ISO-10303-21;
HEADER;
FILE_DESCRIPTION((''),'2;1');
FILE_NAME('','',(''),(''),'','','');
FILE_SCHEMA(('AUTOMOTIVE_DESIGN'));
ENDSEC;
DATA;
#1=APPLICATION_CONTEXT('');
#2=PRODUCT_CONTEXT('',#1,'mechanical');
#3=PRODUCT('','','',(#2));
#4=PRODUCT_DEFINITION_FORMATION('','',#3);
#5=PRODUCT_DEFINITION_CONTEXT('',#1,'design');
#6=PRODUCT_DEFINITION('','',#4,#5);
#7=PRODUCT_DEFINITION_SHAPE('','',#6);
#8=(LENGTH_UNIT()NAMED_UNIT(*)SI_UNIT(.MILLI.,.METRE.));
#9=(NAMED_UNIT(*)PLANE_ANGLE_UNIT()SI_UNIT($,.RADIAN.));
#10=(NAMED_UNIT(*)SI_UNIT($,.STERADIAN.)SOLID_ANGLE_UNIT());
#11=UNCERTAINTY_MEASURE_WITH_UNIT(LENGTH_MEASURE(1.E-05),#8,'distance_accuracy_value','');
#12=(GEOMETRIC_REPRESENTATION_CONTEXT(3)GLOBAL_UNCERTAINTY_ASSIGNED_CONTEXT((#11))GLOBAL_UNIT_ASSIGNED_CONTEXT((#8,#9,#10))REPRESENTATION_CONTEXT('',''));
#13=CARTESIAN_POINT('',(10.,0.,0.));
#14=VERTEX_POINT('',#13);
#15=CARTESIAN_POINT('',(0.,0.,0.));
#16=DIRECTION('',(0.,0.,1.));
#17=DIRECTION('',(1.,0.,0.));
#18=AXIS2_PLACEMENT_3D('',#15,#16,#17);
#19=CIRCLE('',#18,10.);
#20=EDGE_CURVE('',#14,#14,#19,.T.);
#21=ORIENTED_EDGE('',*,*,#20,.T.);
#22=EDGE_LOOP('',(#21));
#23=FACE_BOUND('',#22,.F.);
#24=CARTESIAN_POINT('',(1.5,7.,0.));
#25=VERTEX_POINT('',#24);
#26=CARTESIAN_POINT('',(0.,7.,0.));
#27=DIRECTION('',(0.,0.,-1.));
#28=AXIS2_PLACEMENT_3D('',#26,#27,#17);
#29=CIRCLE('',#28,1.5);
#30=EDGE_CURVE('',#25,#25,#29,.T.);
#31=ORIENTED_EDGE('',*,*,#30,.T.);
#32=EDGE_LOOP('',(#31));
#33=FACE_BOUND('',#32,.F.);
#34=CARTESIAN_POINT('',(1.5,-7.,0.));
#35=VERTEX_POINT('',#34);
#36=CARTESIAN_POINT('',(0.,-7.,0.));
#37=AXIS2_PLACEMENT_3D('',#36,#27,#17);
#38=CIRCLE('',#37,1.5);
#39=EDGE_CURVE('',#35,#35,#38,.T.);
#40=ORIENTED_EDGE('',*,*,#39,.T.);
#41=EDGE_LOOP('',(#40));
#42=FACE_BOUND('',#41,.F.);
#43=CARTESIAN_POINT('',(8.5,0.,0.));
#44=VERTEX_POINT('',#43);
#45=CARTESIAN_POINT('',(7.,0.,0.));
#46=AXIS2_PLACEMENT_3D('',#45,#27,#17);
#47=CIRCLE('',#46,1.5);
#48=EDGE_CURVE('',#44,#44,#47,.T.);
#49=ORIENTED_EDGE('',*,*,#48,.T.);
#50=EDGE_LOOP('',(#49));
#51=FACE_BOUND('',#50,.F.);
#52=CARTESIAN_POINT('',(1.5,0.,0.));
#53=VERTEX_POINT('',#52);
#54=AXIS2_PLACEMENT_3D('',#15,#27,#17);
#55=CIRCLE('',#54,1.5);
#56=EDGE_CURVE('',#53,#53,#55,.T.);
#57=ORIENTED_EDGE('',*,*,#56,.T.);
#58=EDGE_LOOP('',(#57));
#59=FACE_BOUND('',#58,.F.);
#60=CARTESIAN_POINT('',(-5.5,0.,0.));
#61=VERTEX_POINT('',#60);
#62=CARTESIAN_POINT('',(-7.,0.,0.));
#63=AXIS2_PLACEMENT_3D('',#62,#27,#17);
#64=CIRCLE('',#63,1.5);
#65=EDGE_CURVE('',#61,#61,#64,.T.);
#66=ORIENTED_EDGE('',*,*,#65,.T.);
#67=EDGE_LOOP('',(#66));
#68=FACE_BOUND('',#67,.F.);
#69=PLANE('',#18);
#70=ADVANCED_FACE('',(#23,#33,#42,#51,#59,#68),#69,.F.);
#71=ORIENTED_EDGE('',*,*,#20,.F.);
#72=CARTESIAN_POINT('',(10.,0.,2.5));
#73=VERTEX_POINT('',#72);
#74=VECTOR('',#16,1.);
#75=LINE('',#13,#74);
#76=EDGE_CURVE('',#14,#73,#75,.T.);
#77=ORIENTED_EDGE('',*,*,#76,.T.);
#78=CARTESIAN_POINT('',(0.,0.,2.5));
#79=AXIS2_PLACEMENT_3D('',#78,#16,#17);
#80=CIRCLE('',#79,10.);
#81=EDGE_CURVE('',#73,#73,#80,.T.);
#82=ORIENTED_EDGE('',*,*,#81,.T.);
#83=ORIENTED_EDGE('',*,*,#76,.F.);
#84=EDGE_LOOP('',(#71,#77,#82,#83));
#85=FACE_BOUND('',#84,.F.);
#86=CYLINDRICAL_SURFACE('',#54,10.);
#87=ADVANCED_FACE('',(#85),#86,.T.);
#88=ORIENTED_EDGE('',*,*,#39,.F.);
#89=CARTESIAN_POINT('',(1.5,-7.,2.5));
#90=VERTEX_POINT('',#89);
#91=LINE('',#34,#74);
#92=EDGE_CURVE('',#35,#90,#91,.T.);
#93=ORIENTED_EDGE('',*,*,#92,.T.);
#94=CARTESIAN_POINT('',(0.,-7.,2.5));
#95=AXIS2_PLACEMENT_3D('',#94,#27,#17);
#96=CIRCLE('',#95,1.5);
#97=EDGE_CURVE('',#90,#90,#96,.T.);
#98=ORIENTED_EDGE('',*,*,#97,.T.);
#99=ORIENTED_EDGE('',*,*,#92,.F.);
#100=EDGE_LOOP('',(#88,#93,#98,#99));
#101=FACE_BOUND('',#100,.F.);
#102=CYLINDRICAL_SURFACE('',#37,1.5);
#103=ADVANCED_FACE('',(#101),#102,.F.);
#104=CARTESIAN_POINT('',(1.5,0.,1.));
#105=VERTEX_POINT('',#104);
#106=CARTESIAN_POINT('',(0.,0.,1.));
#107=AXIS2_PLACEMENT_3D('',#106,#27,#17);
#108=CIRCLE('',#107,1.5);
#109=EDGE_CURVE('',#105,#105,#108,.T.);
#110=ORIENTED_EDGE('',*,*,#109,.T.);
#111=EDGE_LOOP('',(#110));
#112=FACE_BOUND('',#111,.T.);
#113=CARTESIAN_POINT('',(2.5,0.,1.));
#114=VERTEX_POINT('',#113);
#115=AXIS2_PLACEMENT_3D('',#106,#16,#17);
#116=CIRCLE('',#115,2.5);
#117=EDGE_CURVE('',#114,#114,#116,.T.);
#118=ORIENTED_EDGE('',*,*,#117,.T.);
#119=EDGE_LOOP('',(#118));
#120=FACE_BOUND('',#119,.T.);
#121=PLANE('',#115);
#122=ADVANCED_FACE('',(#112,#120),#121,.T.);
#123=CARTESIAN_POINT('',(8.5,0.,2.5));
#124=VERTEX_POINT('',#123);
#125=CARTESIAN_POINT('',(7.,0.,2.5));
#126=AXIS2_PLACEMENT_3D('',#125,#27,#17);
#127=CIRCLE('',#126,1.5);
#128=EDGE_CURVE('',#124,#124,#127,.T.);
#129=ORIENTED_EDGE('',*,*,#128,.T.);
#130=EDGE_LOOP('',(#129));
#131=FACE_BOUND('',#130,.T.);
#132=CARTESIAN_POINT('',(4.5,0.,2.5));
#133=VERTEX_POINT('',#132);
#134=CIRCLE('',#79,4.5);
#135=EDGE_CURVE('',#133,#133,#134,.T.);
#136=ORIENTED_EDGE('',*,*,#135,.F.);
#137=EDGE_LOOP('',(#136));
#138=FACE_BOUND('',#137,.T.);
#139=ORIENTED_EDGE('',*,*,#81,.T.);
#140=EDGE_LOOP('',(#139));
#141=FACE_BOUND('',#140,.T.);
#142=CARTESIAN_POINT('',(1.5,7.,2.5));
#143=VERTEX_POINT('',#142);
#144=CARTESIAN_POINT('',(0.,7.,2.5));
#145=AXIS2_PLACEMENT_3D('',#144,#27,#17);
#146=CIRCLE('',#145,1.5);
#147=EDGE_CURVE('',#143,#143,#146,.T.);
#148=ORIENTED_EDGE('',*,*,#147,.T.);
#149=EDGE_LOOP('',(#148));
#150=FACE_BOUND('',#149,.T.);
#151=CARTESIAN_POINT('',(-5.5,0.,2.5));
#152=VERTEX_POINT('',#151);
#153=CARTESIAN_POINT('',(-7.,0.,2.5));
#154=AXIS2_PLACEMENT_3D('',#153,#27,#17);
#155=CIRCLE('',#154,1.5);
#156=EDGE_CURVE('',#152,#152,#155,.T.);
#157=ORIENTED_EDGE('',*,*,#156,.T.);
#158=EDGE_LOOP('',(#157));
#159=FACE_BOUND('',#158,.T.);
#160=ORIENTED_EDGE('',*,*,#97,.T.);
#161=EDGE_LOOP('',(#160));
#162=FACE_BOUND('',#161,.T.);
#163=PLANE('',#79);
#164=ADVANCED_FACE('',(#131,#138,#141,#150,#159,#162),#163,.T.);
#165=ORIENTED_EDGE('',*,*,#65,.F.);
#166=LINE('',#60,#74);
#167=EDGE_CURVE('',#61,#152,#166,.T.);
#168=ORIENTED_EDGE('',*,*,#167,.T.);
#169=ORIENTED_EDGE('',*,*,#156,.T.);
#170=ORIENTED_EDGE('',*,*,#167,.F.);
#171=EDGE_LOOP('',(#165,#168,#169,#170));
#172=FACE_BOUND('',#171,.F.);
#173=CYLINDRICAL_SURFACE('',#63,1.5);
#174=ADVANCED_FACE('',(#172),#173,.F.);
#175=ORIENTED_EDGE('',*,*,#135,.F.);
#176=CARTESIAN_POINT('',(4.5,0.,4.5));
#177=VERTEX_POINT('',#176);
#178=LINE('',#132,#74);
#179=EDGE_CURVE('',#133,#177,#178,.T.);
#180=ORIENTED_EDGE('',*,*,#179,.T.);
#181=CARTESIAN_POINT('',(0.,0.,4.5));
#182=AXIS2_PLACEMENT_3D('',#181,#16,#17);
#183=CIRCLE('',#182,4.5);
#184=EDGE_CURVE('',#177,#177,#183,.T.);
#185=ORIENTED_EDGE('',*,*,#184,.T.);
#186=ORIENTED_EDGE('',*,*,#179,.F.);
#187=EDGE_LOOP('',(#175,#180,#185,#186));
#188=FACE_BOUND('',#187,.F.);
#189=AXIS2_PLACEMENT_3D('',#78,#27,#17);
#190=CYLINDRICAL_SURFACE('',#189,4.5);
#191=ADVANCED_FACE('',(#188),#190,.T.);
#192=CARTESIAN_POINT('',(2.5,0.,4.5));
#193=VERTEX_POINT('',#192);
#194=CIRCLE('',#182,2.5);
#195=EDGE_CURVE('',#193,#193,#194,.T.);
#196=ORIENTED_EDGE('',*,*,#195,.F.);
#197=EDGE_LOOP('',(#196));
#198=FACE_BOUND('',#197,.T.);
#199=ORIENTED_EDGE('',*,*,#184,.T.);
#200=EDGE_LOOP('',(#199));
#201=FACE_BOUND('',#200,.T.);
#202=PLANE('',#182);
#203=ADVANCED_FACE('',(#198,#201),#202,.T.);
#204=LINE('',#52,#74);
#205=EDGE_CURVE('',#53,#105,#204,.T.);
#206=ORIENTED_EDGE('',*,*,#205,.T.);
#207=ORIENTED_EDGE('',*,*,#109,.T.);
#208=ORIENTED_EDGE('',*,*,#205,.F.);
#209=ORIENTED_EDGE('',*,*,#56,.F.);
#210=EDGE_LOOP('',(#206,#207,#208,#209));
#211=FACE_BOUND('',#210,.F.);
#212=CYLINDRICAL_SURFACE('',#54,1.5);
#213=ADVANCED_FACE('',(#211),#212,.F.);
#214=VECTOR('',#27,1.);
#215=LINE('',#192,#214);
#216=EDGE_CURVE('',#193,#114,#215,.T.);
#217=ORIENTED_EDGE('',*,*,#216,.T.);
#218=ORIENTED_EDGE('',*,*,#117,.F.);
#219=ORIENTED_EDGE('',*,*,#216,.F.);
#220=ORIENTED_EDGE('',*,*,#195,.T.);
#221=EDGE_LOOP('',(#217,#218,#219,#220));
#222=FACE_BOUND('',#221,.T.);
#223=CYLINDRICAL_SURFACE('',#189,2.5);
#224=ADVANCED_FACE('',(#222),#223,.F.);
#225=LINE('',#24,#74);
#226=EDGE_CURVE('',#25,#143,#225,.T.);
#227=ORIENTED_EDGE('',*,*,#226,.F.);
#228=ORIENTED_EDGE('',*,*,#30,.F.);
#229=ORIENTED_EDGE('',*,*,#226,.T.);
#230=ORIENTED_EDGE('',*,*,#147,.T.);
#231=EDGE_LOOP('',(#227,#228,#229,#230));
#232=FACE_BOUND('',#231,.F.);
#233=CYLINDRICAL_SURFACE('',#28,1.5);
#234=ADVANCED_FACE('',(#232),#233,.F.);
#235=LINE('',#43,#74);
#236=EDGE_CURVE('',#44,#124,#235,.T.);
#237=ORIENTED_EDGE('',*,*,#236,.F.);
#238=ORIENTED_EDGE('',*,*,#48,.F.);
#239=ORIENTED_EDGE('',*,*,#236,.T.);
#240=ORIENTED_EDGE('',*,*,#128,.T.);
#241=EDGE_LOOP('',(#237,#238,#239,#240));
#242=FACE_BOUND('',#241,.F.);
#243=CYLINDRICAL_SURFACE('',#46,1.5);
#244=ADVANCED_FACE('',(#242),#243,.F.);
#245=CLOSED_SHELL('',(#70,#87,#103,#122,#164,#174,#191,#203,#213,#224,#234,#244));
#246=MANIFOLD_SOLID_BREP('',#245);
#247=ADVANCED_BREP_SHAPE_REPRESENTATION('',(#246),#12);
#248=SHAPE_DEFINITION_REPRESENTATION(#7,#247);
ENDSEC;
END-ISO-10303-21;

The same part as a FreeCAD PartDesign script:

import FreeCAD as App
import Part
import Sketcher
from FreeCAD import Vector

doc = App.newDocument("Part")
body = doc.addObject("PartDesign::Body", "Body")

# Sketch on XY plane
sketch1 = doc.addObject("Sketcher::SketchObject", "Sketch")
body.addObject(sketch1)
sketch1.AttachmentSupport = (doc.XY_Plane, [""])
sketch1.MapMode = "FlatFace"
sketch1.addGeometry(Part.Circle(Vector(0, 0, 0), Vector(0, 0, 1), 10), False)
sketch1.addConstraint([
    Sketcher.Constraint("Coincident", 0, 3, -1, 1),
    Sketcher.Constraint("Diameter", 0, 20.0),
])
pad1 = doc.addObject("PartDesign::Pad", "Pad")
body.addObject(pad1)
pad1.Profile = sketch1
pad1.Length = 2.5

# Sketch on XY plane
sketch2 = doc.addObject("Sketcher::SketchObject", "Sketch001")
body.addObject(sketch2)
sketch2.AttachmentSupport = (doc.XY_Plane, [""])
sketch2.MapMode = "FlatFace"
sketch2.AttachmentOffset = App.Placement(Vector(0, 0, 2.5), App.Rotation())
sketch2.addGeometry([
    Part.Circle(Vector(0, 0, 0), Vector(0, 0, 1), 4.5),
    Part.Circle(Vector(0, 0, 0), Vector(0, 0, 1), 2.5),
], False)
sketch2.addConstraint([
    Sketcher.Constraint("Coincident", 0, 3, -1, 1),
    Sketcher.Constraint("Coincident", 1, 3, -1, 1),
    Sketcher.Constraint("Diameter", 0, 9.0),
    Sketcher.Constraint("Diameter", 1, 5.0),
])
pad2 = doc.addObject("PartDesign::Pad", "Pad001")
body.addObject(pad2)
pad2.Profile = sketch2
pad2.Length = 2

# Sketch on XY plane
sketch3 = doc.addObject("Sketcher::SketchObject", "Sketch002")
body.addObject(sketch3)
sketch3.AttachmentSupport = (doc.XY_Plane, [""])
sketch3.MapMode = "FlatFace"
sketch3.AttachmentOffset = App.Placement(Vector(0, 0, 2.5), App.Rotation())
sketch3.addGeometry(Part.Circle(Vector(0, 0, 0), Vector(0, 0, 1), 2.5), False)
sketch3.addConstraint([
    Sketcher.Constraint("Coincident", 0, 3, -1, 1),
    Sketcher.Constraint("Diameter", 0, 5.0),
])
pocket1 = doc.addObject("PartDesign::Pocket", "Pocket")
body.addObject(pocket1)
pocket1.Profile = sketch3
pocket1.Length = 1.5

# Sketch on XY plane
sketch4 = doc.addObject("Sketcher::SketchObject", "Sketch003")
body.addObject(sketch4)
sketch4.AttachmentSupport = (doc.XY_Plane, [""])
sketch4.MapMode = "FlatFace"
sketch4.addGeometry([
    Part.Circle(Vector(-7, 0, 0), Vector(0, 0, 1), 1.5),  # 0
    Part.Circle(Vector(7, 0, 0), Vector(0, 0, 1), 1.5),  # 1
    Part.Circle(Vector(0, 7, 0), Vector(0, 0, 1), 1.5),  # 2
    Part.Circle(Vector(0, -7, 0), Vector(0, 0, 1), 1.5),  # 3
    Part.Circle(Vector(0, 0, 0), Vector(0, 0, 1), 1.5),  # 4
], False)
sketch4.addConstraint([
    Sketcher.Constraint("Coincident", 4, 3, -1, 1),
    Sketcher.Constraint("Equal", 0, 1),
    Sketcher.Constraint("Equal", 1, 2),
    Sketcher.Constraint("Equal", 2, 3),
    Sketcher.Constraint("Equal", 3, 4),
    Sketcher.Constraint("Symmetric", 0, 3, 1, 3, -1, 1),
    Sketcher.Constraint("Symmetric", 2, 3, 3, 3, -1, 1),
    Sketcher.Constraint("PointOnObject", 0, 3, -1),
    Sketcher.Constraint("PointOnObject", 2, 3, -2),
    Sketcher.Constraint("Diameter", 0, 3.0),
    Sketcher.Constraint("DistanceX", 0, 3, -1, 1, 7.0),
    Sketcher.Constraint("DistanceY", -1, 1, 2, 3, 7.0),
])
pocket2 = doc.addObject("PartDesign::Pocket", "Pocket001")
body.addObject(pocket2)
pocket2.Profile = sketch4
pocket2.Length = 25
pocket2.Reversed = True

doc.recompute()
